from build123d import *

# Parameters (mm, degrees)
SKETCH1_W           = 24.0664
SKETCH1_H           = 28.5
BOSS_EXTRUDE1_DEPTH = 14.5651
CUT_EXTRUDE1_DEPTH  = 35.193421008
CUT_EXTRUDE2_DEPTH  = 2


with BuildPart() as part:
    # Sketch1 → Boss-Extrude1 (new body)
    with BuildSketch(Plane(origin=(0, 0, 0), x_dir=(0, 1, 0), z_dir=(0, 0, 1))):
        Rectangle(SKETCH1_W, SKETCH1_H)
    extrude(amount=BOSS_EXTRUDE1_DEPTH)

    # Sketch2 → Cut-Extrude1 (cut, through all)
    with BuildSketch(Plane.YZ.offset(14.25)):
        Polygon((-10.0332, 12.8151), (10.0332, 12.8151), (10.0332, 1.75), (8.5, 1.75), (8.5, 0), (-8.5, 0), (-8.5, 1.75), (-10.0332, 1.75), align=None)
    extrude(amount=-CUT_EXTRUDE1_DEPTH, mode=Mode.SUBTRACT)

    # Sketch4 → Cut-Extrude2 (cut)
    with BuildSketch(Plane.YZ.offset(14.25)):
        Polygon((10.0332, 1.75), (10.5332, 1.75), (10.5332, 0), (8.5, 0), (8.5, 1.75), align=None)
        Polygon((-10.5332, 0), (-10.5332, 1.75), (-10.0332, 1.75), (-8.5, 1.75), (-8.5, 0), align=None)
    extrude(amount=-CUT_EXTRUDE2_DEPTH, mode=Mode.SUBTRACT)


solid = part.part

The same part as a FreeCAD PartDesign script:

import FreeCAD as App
import Part
import Sketcher
from FreeCAD import Vector


def add_polygon(sketch, points):
    """Adds a closed chain of lines whose ends are joined by coincident constraints."""
    first, n = sketch.GeometryCount, len(points)
    for a, b in zip(points, points[1:] + points[:1]):
        sketch.addGeometry(Part.LineSegment(App.Vector(*a, 0), App.Vector(*b, 0)), False)
    for i in range(n):
        sketch.addConstraint(Sketcher.Constraint("Coincident", first + i, 2, first + (i + 1) % n, 1))

doc = App.newDocument("Part")
body = doc.addObject("PartDesign::Body", "Body")

sketch1 = doc.addObject("Sketcher::SketchObject", "Sketch")
body.addObject(sketch1)
sketch1.AttachmentSupport = (doc.XY_Plane, [""])
sketch1.MapMode = "FlatFace"
add_polygon(sketch1, [(-14, -12), (14, -12), (14, 12), (-14, 12)])
sketch1.addConstraint([
    Sketcher.Constraint("Horizontal", 0),
    Sketcher.Constraint("Vertical", 1),
    Sketcher.Constraint("Horizontal", 2),
    Sketcher.Constraint("Vertical", 3),
    Sketcher.Constraint("Symmetric", 0, 2, 2, 2, -1, 1),
    Sketcher.Constraint("DistanceX", 0, 1, 0, 2, 28.5),
    Sketcher.Constraint("DistanceY", 1, 1, 1, 2, 24.0664),
])
pad1 = doc.addObject("PartDesign::Pad", "Pad")
body.addObject(pad1)
pad1.Profile = sketch1
pad1.Length = 14.5651

sketch2 = doc.addObject("Sketcher::SketchObject", "Sketch001")
body.addObject(sketch2)
sketch2.AttachmentSupport = (doc.YZ_Plane, [""])
sketch2.MapMode = "FlatFace"
sketch2.AttachmentOffset = App.Placement(Vector(0, 0, 14.25), App.Rotation())
add_polygon(sketch2, [(10, 12.8), (-10, 12.8), (-10, 1.8), (-8.5, 1.8), (-8.5, 0), (8.5, 0), (8.5, 1.8), (10, 1.8)])
sketch2.addConstraint([
    Sketcher.Constraint("Horizontal", 0),
    Sketcher.Constraint("Vertical", 1),
    Sketcher.Constraint("Horizontal", 2),
    Sketcher.Constraint("Vertical", 3),
    Sketcher.Constraint("Horizontal", 4),
    Sketcher.Constraint("Vertical", 5),
    Sketcher.Constraint("Horizontal", 6),
    Sketcher.Constraint("Vertical", 7),
    Sketcher.Constraint("Symmetric", 3, 2, 4, 2, -1, 1),
    Sketcher.Constraint("Symmetric", 1, 2, 6, 2, -2),
    Sketcher.Constraint("DistanceX", 4, 1, 4, 2, 17.0),
    Sketcher.Constraint("DistanceY", 3, 2, 3, 1, 1.75),
    Sketcher.Constraint("DistanceX", 0, 2, 0, 1, 20.0664),
    Sketcher.Constraint("DistanceY", 1, 2, 1, 1, 11.0651),
])
pocket1 = doc.addObject("PartDesign::Pocket", "Pocket")
body.addObject(pocket1)
pocket1.Profile = sketch2
pocket1.Type = "ThroughAll"

sketch3 = doc.addObject("Sketcher::SketchObject", "Sketch002")
body.addObject(sketch3)
sketch3.AttachmentSupport = (doc.YZ_Plane, [""])
sketch3.MapMode = "FlatFace"
sketch3.AttachmentOffset = App.Placement(Vector(0, 0, 14.25), App.Rotation())
add_polygon(sketch3, [(10.5, 1.8), (8.5, 1.8), (8.5, 0), (10.5, 0)])
add_polygon(sketch3, [(-10.5, 1.8), (-10.5, 0), (-8.5, 0), (-8.5, 1.8)])
sketch3.addConstraint([
    Sketcher.Constraint("Horizontal", 0),
    Sketcher.Constraint("Vertical", 1),
    Sketcher.Constraint("Horizontal", 2),
    Sketcher.Constraint("Vertical", 3),
    Sketcher.Constraint("Vertical", 4),
    Sketcher.Constraint("Horizontal", 5),
    Sketcher.Constraint("Vertical", 6),
    Sketcher.Constraint("Horizontal", 7),
    Sketcher.Constraint("Symmetric", 2, 2, 4, 2, -1, 1),
    Sketcher.Constraint("Symmetric", 1, 2, 5, 2, -2),
    Sketcher.Constraint("Horizontal", 3, 2, 6, 2),
    Sketcher.Constraint("DistanceX", 5, 2, 1, 2, 17.0),
    Sketcher.Constraint("DistanceY", 1, 2, 1, 1, 1.75),
    Sketcher.Constraint("DistanceX", 0, 2, 0, 1, 2.0332),
])
pocket2 = doc.addObject("PartDesign::Pocket", "Pocket001")
body.addObject(pocket2)
pocket2.Profile = sketch3
pocket2.Length = 2

doc.recompute()
